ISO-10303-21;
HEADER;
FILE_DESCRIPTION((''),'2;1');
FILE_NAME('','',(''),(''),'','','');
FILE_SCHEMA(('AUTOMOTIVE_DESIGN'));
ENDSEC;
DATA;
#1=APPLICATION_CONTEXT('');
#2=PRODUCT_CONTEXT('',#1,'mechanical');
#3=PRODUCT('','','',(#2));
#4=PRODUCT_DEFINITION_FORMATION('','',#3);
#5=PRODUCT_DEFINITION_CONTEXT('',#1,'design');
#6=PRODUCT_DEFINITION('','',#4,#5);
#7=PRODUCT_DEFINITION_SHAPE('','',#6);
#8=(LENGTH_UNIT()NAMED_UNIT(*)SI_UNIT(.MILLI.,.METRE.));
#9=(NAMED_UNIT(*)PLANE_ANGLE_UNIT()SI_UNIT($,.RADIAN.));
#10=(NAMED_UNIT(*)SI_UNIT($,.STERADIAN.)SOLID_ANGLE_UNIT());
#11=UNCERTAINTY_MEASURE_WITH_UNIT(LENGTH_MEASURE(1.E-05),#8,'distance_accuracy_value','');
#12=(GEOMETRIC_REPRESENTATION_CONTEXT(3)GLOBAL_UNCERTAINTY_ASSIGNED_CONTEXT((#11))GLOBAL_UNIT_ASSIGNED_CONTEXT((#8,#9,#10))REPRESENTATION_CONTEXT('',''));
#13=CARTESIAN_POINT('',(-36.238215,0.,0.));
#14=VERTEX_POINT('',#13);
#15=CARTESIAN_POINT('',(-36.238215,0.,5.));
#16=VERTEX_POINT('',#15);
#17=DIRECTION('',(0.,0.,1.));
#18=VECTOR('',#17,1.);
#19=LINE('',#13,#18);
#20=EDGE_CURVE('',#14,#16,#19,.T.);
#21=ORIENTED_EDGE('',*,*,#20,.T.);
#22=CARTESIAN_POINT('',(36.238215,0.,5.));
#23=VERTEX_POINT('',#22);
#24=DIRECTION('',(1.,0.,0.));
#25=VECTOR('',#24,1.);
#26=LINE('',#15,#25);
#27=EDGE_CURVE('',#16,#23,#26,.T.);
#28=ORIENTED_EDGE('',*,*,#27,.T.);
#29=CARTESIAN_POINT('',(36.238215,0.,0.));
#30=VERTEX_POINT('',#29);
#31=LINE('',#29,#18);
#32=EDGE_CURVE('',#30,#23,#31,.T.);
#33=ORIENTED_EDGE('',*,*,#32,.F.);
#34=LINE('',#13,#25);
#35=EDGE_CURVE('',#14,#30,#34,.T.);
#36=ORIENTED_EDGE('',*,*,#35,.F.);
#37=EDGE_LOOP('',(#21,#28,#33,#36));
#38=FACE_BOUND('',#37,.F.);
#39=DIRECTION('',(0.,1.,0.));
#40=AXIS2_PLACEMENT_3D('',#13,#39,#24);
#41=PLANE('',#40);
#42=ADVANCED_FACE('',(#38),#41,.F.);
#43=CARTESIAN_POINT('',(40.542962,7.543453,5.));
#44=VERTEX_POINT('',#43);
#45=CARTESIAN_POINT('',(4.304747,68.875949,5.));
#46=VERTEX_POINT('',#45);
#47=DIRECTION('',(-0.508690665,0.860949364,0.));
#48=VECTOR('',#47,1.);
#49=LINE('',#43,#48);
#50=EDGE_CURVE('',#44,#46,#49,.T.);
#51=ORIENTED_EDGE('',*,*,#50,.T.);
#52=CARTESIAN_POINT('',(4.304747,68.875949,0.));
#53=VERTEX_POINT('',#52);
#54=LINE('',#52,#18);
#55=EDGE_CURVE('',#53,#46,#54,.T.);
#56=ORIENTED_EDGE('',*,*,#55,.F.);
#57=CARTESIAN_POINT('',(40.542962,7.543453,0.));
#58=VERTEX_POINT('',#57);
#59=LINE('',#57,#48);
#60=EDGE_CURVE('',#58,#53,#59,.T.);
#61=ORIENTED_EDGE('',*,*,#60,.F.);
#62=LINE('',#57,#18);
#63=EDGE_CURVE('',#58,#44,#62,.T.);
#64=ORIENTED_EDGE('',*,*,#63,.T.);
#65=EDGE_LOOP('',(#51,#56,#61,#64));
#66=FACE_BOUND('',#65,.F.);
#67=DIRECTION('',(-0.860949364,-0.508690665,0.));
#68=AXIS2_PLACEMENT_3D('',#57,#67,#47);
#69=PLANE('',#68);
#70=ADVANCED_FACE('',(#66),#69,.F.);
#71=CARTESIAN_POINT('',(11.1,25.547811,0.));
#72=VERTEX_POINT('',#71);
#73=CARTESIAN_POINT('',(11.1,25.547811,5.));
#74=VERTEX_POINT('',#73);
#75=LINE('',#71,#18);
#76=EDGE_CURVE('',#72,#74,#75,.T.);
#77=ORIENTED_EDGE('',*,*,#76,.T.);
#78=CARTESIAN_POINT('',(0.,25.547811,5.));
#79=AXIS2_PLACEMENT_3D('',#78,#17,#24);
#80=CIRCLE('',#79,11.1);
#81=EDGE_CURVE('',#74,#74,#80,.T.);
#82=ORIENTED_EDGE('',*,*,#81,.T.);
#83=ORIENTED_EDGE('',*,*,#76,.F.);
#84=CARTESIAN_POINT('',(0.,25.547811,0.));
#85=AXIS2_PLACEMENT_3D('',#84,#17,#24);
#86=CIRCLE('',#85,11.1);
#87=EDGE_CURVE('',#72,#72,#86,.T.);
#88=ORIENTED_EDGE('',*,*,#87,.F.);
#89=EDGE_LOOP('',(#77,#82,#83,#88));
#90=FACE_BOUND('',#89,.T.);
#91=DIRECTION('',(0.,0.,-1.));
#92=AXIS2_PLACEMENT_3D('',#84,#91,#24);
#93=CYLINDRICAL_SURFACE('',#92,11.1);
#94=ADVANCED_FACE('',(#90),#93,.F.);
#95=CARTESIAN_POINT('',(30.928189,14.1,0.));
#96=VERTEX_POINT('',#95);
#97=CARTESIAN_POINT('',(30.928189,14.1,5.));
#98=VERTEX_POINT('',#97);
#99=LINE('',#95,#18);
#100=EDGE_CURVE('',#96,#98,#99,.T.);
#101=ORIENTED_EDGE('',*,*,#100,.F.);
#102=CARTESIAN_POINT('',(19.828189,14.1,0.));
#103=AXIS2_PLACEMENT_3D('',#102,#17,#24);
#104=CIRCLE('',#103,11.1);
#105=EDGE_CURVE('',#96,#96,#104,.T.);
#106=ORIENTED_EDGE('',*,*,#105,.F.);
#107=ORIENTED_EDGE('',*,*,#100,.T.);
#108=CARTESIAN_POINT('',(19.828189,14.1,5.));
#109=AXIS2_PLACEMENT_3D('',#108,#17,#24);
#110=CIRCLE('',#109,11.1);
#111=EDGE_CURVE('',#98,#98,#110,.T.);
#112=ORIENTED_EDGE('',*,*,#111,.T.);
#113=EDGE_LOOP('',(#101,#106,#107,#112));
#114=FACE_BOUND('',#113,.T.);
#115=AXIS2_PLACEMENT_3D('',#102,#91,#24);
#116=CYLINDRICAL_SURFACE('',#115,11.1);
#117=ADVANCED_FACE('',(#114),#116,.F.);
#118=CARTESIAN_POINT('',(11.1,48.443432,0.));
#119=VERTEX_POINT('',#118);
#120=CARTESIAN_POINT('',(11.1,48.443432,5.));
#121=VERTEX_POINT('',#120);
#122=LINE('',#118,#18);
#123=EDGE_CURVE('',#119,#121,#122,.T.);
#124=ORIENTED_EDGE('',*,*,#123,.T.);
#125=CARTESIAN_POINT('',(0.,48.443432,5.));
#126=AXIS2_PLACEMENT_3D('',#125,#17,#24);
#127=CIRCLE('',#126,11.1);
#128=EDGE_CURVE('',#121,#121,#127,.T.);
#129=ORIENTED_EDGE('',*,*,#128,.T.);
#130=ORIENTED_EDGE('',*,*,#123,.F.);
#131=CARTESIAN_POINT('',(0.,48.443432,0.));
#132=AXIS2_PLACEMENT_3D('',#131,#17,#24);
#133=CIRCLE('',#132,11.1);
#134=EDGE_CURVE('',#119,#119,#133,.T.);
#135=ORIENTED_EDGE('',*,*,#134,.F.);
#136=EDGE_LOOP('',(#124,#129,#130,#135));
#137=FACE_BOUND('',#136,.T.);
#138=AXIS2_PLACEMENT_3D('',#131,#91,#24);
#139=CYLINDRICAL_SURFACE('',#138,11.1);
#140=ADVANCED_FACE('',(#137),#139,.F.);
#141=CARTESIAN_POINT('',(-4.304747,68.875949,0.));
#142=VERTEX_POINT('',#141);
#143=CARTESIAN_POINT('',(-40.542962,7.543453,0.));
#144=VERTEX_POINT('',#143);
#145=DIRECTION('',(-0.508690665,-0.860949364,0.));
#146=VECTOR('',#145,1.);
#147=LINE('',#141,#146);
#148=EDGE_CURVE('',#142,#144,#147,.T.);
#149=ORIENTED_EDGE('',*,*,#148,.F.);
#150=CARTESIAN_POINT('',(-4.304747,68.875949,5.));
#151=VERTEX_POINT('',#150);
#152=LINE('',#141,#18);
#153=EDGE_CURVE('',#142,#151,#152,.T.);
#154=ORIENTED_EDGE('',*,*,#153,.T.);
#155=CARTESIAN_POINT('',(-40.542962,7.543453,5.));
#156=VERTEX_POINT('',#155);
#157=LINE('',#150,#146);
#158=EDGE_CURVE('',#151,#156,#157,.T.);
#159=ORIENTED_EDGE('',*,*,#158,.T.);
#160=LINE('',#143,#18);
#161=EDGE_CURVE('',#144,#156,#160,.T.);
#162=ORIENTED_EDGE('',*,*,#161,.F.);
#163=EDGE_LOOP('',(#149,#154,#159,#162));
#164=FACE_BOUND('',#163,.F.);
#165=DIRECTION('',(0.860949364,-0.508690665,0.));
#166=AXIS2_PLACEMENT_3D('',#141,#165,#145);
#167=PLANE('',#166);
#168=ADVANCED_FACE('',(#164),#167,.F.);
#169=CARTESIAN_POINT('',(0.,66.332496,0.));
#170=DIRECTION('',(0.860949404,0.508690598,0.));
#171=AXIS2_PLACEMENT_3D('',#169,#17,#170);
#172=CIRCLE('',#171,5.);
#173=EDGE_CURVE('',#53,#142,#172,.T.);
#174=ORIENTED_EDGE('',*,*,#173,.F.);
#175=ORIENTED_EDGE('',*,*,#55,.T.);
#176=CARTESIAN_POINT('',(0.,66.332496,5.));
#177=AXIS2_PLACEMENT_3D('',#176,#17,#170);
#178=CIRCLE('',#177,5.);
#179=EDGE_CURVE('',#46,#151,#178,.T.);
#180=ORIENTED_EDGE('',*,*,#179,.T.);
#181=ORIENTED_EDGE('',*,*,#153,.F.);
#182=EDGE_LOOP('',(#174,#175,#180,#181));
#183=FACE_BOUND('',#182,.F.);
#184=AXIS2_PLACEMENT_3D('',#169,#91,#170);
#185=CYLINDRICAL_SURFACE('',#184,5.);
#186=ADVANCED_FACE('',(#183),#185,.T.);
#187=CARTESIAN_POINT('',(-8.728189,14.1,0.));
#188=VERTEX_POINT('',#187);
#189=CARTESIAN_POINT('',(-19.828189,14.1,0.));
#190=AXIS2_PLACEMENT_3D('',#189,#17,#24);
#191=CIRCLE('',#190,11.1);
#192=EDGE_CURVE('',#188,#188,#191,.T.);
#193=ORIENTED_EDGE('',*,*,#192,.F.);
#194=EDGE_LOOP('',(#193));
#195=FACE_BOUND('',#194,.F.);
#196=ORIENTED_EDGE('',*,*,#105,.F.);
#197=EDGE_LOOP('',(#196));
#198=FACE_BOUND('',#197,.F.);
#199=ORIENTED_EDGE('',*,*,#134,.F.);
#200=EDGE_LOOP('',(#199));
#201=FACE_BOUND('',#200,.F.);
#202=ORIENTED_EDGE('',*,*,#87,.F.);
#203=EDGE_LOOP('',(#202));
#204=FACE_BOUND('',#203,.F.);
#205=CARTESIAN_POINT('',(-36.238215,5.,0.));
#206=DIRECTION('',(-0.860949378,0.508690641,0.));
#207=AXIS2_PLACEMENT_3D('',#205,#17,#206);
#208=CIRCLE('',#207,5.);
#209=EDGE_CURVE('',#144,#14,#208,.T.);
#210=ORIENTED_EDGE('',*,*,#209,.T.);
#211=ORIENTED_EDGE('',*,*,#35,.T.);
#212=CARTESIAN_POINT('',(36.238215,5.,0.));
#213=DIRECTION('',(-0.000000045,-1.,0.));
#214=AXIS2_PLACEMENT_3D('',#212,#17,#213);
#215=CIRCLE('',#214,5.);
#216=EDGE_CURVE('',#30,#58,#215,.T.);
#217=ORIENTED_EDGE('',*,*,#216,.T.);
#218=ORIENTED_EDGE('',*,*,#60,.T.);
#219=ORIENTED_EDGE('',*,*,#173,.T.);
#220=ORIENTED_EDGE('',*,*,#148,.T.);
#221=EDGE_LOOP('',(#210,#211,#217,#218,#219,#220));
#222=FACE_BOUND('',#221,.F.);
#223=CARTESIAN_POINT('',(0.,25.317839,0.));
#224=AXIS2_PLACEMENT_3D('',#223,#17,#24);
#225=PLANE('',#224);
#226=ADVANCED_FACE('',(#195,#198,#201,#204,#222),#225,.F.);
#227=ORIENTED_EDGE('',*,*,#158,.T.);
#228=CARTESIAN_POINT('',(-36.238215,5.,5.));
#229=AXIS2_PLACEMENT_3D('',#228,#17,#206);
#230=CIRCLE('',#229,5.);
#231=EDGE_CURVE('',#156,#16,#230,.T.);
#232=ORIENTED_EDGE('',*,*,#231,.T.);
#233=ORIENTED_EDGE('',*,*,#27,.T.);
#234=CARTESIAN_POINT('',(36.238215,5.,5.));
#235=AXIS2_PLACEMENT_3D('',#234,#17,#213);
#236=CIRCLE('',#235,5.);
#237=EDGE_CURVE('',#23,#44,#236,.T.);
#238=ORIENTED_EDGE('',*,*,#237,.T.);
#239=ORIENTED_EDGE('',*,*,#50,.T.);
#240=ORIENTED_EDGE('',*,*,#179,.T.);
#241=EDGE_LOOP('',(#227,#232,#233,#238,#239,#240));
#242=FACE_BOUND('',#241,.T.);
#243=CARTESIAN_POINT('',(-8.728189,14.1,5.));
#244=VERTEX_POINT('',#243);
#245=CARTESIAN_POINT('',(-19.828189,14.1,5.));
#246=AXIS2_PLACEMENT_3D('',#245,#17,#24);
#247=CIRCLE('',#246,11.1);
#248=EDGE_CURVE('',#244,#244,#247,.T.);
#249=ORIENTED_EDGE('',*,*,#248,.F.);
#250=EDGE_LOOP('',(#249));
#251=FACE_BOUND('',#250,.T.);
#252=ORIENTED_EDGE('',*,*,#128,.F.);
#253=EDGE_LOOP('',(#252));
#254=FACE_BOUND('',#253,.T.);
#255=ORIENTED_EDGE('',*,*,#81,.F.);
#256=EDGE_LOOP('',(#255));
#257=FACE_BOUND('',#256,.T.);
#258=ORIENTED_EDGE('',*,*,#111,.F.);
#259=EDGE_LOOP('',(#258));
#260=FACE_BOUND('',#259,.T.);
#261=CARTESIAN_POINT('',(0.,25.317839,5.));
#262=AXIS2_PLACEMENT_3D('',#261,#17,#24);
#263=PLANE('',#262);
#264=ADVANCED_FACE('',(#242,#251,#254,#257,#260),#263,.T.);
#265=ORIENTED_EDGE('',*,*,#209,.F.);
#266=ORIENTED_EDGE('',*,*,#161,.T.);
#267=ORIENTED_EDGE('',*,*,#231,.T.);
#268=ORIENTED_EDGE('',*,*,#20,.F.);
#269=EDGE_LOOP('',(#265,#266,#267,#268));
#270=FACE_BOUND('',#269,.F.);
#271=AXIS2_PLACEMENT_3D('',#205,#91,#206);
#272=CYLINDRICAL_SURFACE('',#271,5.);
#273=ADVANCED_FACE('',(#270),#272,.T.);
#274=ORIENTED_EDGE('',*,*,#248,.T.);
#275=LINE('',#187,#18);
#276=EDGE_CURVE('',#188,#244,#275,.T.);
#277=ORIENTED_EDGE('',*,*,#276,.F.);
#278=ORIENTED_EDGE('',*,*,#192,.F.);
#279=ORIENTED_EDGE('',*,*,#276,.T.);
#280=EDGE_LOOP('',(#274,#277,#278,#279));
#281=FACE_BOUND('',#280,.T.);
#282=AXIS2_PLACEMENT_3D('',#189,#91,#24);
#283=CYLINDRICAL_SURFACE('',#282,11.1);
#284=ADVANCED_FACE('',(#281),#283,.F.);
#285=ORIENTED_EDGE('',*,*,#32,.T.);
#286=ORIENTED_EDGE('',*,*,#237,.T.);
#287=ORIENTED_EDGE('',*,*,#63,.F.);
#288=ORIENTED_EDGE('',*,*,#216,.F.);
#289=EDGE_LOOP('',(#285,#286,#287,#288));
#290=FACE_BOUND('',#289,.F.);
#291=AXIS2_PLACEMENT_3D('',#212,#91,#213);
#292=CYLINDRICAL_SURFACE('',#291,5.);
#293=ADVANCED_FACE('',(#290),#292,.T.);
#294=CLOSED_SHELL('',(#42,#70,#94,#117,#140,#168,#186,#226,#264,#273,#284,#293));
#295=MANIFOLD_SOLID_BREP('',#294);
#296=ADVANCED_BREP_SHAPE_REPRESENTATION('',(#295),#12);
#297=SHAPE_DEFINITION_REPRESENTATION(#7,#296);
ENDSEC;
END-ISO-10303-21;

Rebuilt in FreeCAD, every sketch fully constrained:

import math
import FreeCAD as App
import Part
import Sketcher
from FreeCAD import Vector
Q = App.Units.Quantity

doc = App.newDocument("Part")
body = doc.addObject("PartDesign::Body", "Body")

sketch1 = doc.addObject("Sketcher::SketchObject", "Sketch")
body.addObject(sketch1)
sketch1.AttachmentSupport = (doc.XY_Plane, [""])
sketch1.MapMode = "FlatFace"
sketch1.addGeometry([
    Part.LineSegment(Vector(40.5, 7.5, 0), Vector(4.3, 68.9, 0)),
    Part.ArcOfCircle(Part.Circle(Vector(0, 66.3, 0), Vector(0, 0, 1), 5), math.radians(31), math.radians(149)),
    Part.LineSegment(Vector(-4.3, 68.9, 0), Vector(-40.5, 7.5, 0)),
    Part.ArcOfCircle(Part.Circle(Vector(-36.2, 5, 0), Vector(0, 0, 1), 5), math.radians(149), math.radians(270)),
    Part.LineSegment(Vector(-36.2, 0, 0), Vector(36.2, 0, 0)),
    Part.ArcOfCircle(Part.Circle(Vector(36.2, 5, 0), Vector(0, 0, 1), 5), math.radians(-90), math.radians(31)),
    Part.Circle(Vector(-19.8, 14.1, 0), Vector(0, 0, 1), 11.1),
    Part.Circle(Vector(0, 25.5, 0), Vector(0, 0, 1), 11.1),
    Part.Circle(Vector(19.8, 14.1, 0), Vector(0, 0, 1), 11.1),
    Part.Circle(Vector(0, 48.4, 0), Vector(0, 0, 1), 11.1),
], False)
sketch1.addConstraint([
    Sketcher.Constraint("Tangent", 0, 2, 1, 1),
    Sketcher.Constraint("Tangent", 1, 2, 2, 1),
    Sketcher.Constraint("Tangent", 2, 2, 3, 1),
    Sketcher.Constraint("Tangent", 3, 2, 4, 1),
    Sketcher.Constraint("Tangent", 4, 2, 5, 1),
    Sketcher.Constraint("Tangent", 5, 2, 0, 1),
    Sketcher.Constraint("Horizontal", 4),
    Sketcher.Constraint("Equal", 1, 3),
    Sketcher.Constraint("Equal", 3, 5),
    Sketcher.Constraint("Equal", 6, 7),
    Sketcher.Constraint("Equal", 7, 8),
    Sketcher.Constraint("Equal", 8, 9),
    Sketcher.Constraint("Symmetric", 3, 2, 4, 2, -1, 1),
    Sketcher.Constraint("Symmetric", 6, 3, 8, 3, -2),
    Sketcher.Constraint("PointOnObject", 1, 3, -2),
    Sketcher.Constraint("PointOnObject", 7, 3, -2),
    Sketcher.Constraint("PointOnObject", 9, 3, -2),
    Sketcher.Constraint("Radius", 1, Q("5 mm")),
    Sketcher.Constraint("Diameter", 6, Q("22.2 mm")),
    Sketcher.Constraint("DistanceY", -1, 1, 6, 3, Q("14.1 mm")),
    Sketcher.Constraint("DistanceX", 4, 1, 4, 2, Q("72.47643 mm")),
    Sketcher.Constraint("DistanceX", 6, 3, -1, 1, Q("19.828189 mm")),
    Sketcher.Constraint("DistanceY", -1, 1, 7, 3, Q("25.547811 mm")),
    Sketcher.Constraint("DistanceY", -1, 1, 0, 2, Q("68.875949 mm")),
    Sketcher.Constraint("DistanceY", 7, 3, 9, 3, Q("22.895621 mm")),
])
pad1 = doc.addObject("PartDesign::Pad", "Pad")
body.addObject(pad1)
pad1.Profile = sketch1
pad1.Length = 5

doc.recompute()
